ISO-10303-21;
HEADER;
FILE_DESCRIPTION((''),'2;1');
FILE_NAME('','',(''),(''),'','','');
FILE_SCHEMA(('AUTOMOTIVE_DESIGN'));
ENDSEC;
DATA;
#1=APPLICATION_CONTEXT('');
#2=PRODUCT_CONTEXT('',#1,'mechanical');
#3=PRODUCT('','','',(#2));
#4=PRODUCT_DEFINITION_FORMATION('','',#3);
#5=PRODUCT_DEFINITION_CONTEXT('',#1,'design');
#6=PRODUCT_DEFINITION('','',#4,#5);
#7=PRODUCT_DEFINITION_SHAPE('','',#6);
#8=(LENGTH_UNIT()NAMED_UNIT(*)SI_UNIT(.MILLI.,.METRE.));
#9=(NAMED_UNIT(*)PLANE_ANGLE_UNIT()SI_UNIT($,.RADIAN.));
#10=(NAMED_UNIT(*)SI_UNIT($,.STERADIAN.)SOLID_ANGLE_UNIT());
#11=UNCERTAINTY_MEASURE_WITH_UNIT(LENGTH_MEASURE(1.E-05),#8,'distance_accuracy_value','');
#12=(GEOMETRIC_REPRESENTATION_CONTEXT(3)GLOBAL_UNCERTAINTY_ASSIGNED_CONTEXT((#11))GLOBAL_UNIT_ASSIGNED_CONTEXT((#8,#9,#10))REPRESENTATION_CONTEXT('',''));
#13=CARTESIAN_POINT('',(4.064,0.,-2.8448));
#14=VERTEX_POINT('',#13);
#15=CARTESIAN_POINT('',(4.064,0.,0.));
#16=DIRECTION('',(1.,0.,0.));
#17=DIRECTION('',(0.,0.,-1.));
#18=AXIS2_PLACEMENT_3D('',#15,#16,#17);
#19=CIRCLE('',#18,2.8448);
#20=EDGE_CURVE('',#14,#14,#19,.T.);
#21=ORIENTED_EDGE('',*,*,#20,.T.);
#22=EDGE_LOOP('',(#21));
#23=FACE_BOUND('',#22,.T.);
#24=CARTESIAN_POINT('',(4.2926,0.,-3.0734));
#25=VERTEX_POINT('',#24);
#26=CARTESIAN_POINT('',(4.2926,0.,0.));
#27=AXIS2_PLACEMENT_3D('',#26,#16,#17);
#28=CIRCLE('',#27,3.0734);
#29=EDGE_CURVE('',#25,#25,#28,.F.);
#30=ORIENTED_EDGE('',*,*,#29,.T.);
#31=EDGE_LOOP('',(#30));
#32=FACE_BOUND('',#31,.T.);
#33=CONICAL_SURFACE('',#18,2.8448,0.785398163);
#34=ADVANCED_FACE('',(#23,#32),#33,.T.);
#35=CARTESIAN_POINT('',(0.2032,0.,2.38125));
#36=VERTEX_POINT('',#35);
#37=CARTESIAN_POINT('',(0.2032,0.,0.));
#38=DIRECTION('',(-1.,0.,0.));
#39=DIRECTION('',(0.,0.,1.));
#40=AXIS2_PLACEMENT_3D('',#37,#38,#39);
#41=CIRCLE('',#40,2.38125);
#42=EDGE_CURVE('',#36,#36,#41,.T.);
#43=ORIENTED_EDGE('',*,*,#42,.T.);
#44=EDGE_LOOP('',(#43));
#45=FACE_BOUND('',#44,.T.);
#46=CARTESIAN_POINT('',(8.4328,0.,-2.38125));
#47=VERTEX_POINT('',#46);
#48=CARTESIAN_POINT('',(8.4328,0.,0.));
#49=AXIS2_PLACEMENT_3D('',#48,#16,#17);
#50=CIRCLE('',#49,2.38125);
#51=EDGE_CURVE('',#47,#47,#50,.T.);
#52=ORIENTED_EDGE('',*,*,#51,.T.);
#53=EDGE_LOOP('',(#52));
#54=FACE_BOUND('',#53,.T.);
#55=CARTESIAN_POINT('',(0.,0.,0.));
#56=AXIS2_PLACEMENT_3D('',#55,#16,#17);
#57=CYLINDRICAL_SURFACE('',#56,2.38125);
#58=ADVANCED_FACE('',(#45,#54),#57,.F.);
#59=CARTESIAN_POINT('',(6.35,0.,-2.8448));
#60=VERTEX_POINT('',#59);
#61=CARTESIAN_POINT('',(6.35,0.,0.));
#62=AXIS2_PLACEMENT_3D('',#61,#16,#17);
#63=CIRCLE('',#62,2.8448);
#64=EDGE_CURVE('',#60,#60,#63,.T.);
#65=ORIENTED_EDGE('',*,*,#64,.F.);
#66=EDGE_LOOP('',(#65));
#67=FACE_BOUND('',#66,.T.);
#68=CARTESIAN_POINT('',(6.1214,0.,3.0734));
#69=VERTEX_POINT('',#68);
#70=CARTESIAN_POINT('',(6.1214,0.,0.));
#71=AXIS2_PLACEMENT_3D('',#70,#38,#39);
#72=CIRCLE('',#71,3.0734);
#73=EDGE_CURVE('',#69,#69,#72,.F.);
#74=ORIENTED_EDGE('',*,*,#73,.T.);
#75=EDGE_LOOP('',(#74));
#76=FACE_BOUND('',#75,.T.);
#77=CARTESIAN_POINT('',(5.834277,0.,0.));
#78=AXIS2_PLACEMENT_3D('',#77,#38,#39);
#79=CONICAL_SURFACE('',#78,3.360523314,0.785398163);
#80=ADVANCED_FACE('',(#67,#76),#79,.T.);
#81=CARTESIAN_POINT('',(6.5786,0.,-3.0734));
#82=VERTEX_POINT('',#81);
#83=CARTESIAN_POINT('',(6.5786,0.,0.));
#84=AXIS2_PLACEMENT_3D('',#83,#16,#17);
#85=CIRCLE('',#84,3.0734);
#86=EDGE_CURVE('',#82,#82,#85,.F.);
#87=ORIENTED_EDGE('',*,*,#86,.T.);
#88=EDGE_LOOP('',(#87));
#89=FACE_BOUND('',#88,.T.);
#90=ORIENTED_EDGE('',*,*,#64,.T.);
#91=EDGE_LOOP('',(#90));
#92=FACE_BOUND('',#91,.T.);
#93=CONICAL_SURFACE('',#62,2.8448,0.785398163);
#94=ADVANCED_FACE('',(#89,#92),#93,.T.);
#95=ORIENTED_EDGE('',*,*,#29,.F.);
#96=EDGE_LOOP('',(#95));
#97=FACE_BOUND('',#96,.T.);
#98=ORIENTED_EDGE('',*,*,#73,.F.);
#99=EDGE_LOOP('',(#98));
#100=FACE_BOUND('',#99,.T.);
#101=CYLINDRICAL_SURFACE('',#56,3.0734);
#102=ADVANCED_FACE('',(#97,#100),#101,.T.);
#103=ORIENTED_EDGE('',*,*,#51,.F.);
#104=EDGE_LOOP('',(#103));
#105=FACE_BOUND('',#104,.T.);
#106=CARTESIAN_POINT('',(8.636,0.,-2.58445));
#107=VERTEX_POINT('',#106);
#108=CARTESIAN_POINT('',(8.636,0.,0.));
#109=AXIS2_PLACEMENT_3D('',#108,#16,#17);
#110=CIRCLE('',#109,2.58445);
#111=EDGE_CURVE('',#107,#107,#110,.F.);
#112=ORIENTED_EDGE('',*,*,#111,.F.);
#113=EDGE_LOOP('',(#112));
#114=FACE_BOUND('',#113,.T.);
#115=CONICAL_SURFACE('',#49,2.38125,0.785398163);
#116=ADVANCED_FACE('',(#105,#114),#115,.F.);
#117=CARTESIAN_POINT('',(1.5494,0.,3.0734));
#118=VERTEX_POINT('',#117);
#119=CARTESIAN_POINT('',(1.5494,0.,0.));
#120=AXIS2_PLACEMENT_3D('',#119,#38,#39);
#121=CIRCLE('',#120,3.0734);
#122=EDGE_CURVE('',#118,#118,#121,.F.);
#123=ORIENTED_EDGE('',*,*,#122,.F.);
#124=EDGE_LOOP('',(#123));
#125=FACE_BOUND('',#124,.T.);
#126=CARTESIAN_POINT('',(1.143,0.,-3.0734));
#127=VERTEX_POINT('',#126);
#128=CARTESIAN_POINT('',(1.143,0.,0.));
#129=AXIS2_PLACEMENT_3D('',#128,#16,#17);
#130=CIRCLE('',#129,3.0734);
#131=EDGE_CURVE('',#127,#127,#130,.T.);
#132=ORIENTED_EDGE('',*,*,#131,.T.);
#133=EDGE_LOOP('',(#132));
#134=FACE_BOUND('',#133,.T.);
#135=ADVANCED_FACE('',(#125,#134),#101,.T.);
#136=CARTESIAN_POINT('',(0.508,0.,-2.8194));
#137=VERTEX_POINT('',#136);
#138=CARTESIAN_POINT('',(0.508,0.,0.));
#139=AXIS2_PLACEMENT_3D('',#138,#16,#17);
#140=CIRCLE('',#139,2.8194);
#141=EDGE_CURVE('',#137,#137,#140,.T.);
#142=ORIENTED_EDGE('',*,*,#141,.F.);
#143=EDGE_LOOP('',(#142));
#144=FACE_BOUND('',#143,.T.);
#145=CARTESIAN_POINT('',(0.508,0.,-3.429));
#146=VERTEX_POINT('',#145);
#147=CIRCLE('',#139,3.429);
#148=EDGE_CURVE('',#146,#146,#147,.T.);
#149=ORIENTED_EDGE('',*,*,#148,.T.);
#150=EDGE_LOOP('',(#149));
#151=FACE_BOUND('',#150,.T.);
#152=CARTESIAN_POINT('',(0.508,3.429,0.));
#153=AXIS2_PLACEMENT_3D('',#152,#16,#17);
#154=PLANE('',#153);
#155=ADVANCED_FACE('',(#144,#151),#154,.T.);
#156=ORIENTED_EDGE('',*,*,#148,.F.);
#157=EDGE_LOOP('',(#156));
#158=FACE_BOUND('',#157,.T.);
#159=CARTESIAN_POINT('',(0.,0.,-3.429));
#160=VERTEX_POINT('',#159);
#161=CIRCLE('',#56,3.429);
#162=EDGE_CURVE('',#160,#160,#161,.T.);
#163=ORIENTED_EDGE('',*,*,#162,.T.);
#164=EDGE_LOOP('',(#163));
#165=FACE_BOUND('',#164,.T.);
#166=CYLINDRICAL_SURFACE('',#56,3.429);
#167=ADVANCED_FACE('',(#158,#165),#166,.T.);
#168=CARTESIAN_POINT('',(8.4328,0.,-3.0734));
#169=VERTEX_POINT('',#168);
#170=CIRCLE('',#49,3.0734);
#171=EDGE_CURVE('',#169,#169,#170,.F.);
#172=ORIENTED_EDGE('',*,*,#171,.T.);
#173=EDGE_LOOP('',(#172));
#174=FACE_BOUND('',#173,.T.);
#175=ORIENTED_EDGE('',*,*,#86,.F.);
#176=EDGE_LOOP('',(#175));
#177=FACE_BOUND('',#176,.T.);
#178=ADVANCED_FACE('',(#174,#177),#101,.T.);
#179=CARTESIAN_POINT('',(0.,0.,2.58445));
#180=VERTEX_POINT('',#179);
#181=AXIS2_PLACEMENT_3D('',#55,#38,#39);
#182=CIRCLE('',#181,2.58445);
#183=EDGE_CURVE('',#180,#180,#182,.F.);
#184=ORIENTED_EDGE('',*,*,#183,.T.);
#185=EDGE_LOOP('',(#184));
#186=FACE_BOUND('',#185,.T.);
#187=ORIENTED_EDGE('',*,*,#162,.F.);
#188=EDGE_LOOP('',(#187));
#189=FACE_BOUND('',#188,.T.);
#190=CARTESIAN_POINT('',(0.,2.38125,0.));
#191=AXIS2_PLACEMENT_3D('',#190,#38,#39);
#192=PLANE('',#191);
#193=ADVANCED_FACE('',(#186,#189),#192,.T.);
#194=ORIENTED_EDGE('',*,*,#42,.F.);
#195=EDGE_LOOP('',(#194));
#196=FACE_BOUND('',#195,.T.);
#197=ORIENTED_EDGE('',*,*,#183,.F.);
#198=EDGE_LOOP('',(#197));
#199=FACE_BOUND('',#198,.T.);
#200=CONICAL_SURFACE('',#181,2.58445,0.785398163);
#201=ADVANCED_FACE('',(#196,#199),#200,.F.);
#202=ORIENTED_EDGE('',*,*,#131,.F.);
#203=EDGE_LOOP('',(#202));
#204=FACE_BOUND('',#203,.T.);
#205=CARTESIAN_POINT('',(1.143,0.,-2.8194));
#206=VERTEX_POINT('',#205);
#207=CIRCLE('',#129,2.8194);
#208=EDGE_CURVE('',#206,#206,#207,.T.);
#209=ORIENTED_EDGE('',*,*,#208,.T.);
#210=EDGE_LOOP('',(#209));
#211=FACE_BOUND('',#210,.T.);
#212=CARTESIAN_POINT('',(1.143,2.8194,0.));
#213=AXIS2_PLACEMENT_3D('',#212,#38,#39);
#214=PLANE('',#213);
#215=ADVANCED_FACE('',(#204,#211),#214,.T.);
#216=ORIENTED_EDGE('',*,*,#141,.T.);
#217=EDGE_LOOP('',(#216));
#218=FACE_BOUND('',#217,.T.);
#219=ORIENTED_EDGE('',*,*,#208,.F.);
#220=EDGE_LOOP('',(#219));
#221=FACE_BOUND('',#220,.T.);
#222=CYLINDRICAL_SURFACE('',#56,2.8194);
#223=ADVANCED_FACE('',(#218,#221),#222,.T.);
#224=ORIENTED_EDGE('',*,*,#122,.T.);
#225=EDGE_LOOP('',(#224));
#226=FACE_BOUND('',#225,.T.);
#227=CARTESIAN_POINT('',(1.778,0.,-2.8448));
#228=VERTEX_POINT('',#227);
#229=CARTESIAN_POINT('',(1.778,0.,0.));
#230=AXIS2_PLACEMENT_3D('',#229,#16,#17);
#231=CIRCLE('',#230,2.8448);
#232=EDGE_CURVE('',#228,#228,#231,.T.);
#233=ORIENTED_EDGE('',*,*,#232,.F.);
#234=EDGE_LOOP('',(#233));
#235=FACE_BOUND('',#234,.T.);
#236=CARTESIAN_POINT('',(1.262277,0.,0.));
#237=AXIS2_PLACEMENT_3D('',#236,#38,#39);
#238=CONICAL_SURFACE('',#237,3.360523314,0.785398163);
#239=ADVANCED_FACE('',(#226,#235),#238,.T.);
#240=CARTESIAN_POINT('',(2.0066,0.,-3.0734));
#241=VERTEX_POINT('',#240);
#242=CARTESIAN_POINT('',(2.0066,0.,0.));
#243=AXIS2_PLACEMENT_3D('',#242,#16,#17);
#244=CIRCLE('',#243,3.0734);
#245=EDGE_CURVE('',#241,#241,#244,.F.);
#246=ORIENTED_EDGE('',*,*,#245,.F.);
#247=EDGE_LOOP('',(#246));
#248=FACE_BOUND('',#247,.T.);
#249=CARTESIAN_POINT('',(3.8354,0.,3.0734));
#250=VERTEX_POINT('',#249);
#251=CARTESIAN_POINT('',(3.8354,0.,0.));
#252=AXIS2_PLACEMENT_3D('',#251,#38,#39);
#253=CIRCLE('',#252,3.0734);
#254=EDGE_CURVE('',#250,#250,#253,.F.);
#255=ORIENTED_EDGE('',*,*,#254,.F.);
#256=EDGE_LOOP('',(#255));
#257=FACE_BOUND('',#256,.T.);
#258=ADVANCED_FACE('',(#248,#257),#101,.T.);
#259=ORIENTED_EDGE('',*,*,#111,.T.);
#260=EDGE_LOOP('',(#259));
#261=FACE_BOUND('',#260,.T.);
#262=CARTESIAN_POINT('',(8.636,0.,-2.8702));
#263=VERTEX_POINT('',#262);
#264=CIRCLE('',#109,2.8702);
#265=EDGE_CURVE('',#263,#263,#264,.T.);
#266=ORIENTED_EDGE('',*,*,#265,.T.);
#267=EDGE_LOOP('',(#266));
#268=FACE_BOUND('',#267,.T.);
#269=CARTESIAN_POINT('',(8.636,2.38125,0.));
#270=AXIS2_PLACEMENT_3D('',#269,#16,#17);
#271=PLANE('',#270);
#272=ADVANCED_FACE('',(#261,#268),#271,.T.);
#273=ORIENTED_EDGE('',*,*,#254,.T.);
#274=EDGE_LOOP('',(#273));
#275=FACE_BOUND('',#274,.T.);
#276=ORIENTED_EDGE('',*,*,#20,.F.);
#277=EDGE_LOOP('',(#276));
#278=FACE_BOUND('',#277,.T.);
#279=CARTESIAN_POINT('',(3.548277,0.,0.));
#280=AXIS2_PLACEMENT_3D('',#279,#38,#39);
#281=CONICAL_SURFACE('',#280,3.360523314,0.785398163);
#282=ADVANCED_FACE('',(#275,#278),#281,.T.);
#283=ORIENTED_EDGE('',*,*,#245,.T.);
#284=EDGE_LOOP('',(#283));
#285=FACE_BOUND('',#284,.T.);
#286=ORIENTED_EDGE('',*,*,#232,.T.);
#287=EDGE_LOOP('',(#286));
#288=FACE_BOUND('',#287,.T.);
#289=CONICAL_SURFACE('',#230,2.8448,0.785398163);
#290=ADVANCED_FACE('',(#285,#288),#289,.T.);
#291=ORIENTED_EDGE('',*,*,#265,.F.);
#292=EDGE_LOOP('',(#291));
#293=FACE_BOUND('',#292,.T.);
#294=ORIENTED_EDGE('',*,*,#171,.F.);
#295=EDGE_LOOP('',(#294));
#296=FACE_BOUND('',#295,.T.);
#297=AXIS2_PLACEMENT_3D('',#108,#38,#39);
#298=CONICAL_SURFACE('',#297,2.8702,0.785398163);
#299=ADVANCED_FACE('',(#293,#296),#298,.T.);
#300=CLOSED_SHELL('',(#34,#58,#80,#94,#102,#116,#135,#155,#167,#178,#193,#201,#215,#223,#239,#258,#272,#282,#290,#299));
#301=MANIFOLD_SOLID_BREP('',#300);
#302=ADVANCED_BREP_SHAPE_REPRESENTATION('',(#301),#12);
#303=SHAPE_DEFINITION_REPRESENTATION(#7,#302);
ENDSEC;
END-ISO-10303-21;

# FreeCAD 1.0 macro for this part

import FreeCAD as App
import Part
import Sketcher
from FreeCAD import Vector
Q = App.Units.Quantity


def edges_at(feature, points):
    """Names of the edges that pass closest to the given points."""
    edges = feature.Shape.Edges
    near = lambda p: min(range(len(edges)), key=lambda i: edges[i].distToShape(Part.Vertex(*p))[0])
    return sorted({f"Edge{near(p) + 1}" for p in points})

doc = App.newDocument("Part")
body = doc.addObject("PartDesign::Body", "Body")

sketch1 = doc.addObject("Sketcher::SketchObject", "Sketch")
body.addObject(sketch1)
sketch1.AttachmentSupport = (doc.XY_Plane, [""])
sketch1.MapMode = "FlatFace"
sketch1.addGeometry(Part.LineSegment(Vector(0, 2.38, 0), Vector(8.64, 2.38, 0)), False)
sketch1.addGeometry(Part.LineSegment(Vector(8.64, 2.38, 0), Vector(8.64, 3.07, 0)), False)
sketch1.addGeometry(Part.LineSegment(Vector(8.64, 3.07, 0), Vector(1.14, 3.07, 0)), False)
sketch1.addGeometry(Part.LineSegment(Vector(1.14, 3.07, 0), Vector(1.14, 2.82, 0)), False)
sketch1.addGeometry(Part.LineSegment(Vector(1.14, 2.82, 0), Vector(0.51, 2.82, 0)), False)
sketch1.addGeometry(Part.LineSegment(Vector(0.51, 2.82, 0), Vector(0.51, 3.43, 0)), False)
sketch1.addGeometry(Part.LineSegment(Vector(0.51, 3.43, 0), Vector(0, 3.43, 0)), False)
sketch1.addGeometry(Part.LineSegment(Vector(0, 3.43, 0), Vector(0, 2.38, 0)), False)
sketch1.addConstraint(Sketcher.Constraint("Coincident", 0, 2, 1, 1))
sketch1.addConstraint(Sketcher.Constraint("Coincident", 1, 2, 2, 1))
sketch1.addConstraint(Sketcher.Constraint("Coincident", 2, 2, 3, 1))
sketch1.addConstraint(Sketcher.Constraint("Coincident", 3, 2, 4, 1))
sketch1.addConstraint(Sketcher.Constraint("Coincident", 4, 2, 5, 1))
sketch1.addConstraint(Sketcher.Constraint("Coincident", 5, 2, 6, 1))
sketch1.addConstraint(Sketcher.Constraint("Coincident", 6, 2, 7, 1))
sketch1.addConstraint(Sketcher.Constraint("Coincident", 7, 2, 0, 1))
sketch1.addConstraint(Sketcher.Constraint("Horizontal", 0))
sketch1.addConstraint(Sketcher.Constraint("Vertical", 1))
sketch1.addConstraint(Sketcher.Constraint("Horizontal", 2))
sketch1.addConstraint(Sketcher.Constraint("Vertical", 3))
sketch1.addConstraint(Sketcher.Constraint("Horizontal", 4))
sketch1.addConstraint(Sketcher.Constraint("Vertical", 5))
sketch1.addConstraint(Sketcher.Constraint("Horizontal", 6))
sketch1.addConstraint(Sketcher.Constraint("Vertical", 7))
sketch1.addConstraint(Sketcher.Constraint("PointOnObject", 6, 2, -2))
sketch1.addConstraint(Sketcher.Constraint("DistanceX", 0, 1, 0, 2, Q("0.34 in")))
sketch1.addConstraint(Sketcher.Constraint("DistanceX", 6, 2, 6, 1, Q("0.02 in")))
sketch1.addConstraint(Sketcher.Constraint("DistanceY", 3, 2, 3, 1, Q("0.01 in")))
sketch1.addConstraint(Sketcher.Constraint("DistanceX", 2, 2, 2, 1, Q("0.295 in")))
sketch1.addConstraint(Sketcher.Constraint("DistanceY", 5, 1, 5, 2, Q("0.024 in")))
sketch1.addConstraint(Sketcher.Constraint("DistanceY", -1, 1, 0, 2, Q("0.09375 in")))
sketch1.addConstraint(Sketcher.Constraint("DistanceY", -1, 1, 1, 2, Q("0.121 in")))
revolution = doc.addObject("PartDesign::Revolution", "Revolution")
body.addObject(revolution)
revolution.Profile = sketch1
revolution.ReferenceAxis = (sketch1, ["H_Axis"])
revolution.Angle = 360
doc.recompute()

chamfer = doc.addObject("PartDesign::Chamfer", "Chamfer")
body.addObject(chamfer)
chamfer.Base = (revolution, edges_at(revolution, [(0, 0, 2.381), (8.636, 0, 2.381)]))
chamfer.Size = Q("0.008 in")
doc.recompute()

chamfer2 = doc.addObject("PartDesign::Chamfer", "Chamfer001")
body.addObject(chamfer2)
chamfer2.Base = (chamfer, edges_at(chamfer, [(8.636, 0, 3.073)]))
chamfer2.Size = Q("0.008 in")

sketch2 = doc.addObject("Sketcher::SketchObject", "Sketch001")
body.addObject(sketch2)
sketch2.AttachmentSupport = (doc.XY_Plane, [""])
sketch2.MapMode = "FlatFace"
sketch2.addGeometry(Part.LineSegment(Vector(1.3, 3.4, 0), Vector(1.8, 2.8, 0)), False)
sketch2.addGeometry(Part.LineSegment(Vector(1.8, 2.8, 0), Vector(2.3, 3.4, 0)), False)
sketch2.addGeometry(Part.LineSegment(Vector(2.3, 3.4, 0), Vector(1.3, 3.4, 0)), False)
sketch2.addConstraint(Sketcher.Constraint("Coincident", 0, 2, 1, 1))
sketch2.addConstraint(Sketcher.Constraint("Coincident", 1, 2, 2, 1))
sketch2.addConstraint(Sketcher.Constraint("Coincident", 2, 2, 0, 1))
sketch2.addConstraint(Sketcher.Constraint("Horizontal", 2))
sketch2.addConstraint(Sketcher.Constraint("Perpendicular", 0, 1))
sketch2.addConstraint(Sketcher.Constraint("Equal", 0, 1))
sketch2.addConstraint(Sketcher.Constraint("DistanceX", -1, 1, 0, 2, Q("0.07 in")))
sketch2.addConstraint(Sketcher.Constraint("DistanceY", -1, 1, 0, 2, Q("0.112 in")))
sketch2.addConstraint(Sketcher.Constraint("DistanceX", 2, 2, 2, 1, 1.031447))
groove = doc.addObject("PartDesign::Groove", "Groove")
body.addObject(groove)
groove.Profile = sketch2
groove.ReferenceAxis = (sketch2, ["H_Axis"])
groove.Angle = 360
doc.recompute()

linearpattern = doc.addObject("PartDesign::LinearPattern", "LinearPattern")
body.addObject(linearpattern)
linearpattern.Originals = [groove]
linearpattern.Direction = (doc.X_Axis, [""])
linearpattern.Mode = "offset"
linearpattern.Offset = Q("0.09 in")
linearpattern.Occurrences = 3
body.Tip = linearpattern

doc.recompute()
